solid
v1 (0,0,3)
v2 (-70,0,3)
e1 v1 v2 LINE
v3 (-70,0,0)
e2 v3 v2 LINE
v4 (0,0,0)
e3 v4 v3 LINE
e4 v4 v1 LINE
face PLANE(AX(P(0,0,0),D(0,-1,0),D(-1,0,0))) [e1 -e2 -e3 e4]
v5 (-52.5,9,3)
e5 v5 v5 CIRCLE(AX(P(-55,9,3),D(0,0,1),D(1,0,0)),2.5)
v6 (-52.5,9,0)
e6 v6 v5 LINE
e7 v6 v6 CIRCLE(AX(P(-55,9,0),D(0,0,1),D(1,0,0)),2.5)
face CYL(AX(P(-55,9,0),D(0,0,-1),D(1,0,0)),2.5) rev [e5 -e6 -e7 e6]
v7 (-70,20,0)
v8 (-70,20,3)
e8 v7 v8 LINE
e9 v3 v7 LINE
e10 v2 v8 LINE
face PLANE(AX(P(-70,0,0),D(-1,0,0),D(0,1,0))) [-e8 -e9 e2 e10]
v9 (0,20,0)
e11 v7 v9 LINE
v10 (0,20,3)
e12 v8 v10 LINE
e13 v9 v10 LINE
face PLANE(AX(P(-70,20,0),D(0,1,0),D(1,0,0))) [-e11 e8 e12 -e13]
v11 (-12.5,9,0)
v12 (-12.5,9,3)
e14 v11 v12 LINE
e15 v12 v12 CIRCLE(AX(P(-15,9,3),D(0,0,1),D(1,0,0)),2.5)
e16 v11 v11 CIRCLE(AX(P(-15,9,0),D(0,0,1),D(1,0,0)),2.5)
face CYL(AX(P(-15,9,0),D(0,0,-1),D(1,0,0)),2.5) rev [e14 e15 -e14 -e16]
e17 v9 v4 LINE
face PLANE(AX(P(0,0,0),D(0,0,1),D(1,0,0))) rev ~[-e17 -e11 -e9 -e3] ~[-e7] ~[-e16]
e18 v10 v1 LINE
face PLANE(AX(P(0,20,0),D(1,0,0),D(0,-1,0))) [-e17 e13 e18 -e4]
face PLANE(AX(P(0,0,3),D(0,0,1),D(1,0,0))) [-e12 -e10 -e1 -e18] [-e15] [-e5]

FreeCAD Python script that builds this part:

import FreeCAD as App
import Part
import Sketcher

V = App.Vector
Q = App.Units.Quantity

doc = App.newDocument("Part")
body = doc.addObject("PartDesign::Body", "Body")

# Sketch on XY plane
sketch1 = body.newObject("Sketcher::SketchObject", "Sketch")
sketch1.AttachmentSupport = (doc.getObject("XY_Plane"), [""])
sketch1.MapMode = "FlatFace"
sketch1.addGeometry([
    Part.LineSegment(V(-70, 0, 0), V(0, 0, 0)),  # 0
    Part.LineSegment(V(0, 0, 0), V(0, 20, 0)),  # 1
    Part.LineSegment(V(0, 20, 0), V(-70, 20, 0)),  # 2
    Part.LineSegment(V(-70, 20, 0), V(-70, 0, 0)),  # 3
    Part.Circle(V(-55, 9, 0), V(0, 0, 1), 2.5),  # 4
    Part.Circle(V(-15, 9, 0), V(0, 0, 1), 2.5),  # 5
], False)
sketch1.addConstraint([
    Sketcher.Constraint("Coincident", 0, 2, 1, 1),
    Sketcher.Constraint("Coincident", 1, 2, 2, 1),
    Sketcher.Constraint("Coincident", 2, 2, 3, 1),
    Sketcher.Constraint("Coincident", 3, 2, 0, 1),
    Sketcher.Constraint("Horizontal", 0),
    Sketcher.Constraint("Vertical", 1),
    Sketcher.Constraint("Horizontal", 2),
    Sketcher.Constraint("Vertical", 3),
    Sketcher.Constraint("Coincident", 0, 2, -1, 1),
    Sketcher.Constraint("Equal", 4, 5),
    Sketcher.Constraint("Horizontal", 4, 3, 5, 3),
    Sketcher.Constraint("Diameter", 4, Q("5 mm")),
    Sketcher.Constraint("DistanceX", 0, 1, 0, 2, Q("70 mm")),
    Sketcher.Constraint("DistanceY", 1, 1, 1, 2, Q("20 mm")),
    Sketcher.Constraint("DistanceY", -1, 1, 4, 3, Q("9 mm")),
    Sketcher.Constraint("DistanceX", 5, 3, -1, 1, Q("15 mm")),
    Sketcher.Constraint("DistanceX", 4, 3, 5, 3, Q("40 mm")),
])
pad1 = body.newObject("PartDesign::Pad", "Pad")
pad1.Profile = sketch1
pad1.Length = 3

doc.recompute()
